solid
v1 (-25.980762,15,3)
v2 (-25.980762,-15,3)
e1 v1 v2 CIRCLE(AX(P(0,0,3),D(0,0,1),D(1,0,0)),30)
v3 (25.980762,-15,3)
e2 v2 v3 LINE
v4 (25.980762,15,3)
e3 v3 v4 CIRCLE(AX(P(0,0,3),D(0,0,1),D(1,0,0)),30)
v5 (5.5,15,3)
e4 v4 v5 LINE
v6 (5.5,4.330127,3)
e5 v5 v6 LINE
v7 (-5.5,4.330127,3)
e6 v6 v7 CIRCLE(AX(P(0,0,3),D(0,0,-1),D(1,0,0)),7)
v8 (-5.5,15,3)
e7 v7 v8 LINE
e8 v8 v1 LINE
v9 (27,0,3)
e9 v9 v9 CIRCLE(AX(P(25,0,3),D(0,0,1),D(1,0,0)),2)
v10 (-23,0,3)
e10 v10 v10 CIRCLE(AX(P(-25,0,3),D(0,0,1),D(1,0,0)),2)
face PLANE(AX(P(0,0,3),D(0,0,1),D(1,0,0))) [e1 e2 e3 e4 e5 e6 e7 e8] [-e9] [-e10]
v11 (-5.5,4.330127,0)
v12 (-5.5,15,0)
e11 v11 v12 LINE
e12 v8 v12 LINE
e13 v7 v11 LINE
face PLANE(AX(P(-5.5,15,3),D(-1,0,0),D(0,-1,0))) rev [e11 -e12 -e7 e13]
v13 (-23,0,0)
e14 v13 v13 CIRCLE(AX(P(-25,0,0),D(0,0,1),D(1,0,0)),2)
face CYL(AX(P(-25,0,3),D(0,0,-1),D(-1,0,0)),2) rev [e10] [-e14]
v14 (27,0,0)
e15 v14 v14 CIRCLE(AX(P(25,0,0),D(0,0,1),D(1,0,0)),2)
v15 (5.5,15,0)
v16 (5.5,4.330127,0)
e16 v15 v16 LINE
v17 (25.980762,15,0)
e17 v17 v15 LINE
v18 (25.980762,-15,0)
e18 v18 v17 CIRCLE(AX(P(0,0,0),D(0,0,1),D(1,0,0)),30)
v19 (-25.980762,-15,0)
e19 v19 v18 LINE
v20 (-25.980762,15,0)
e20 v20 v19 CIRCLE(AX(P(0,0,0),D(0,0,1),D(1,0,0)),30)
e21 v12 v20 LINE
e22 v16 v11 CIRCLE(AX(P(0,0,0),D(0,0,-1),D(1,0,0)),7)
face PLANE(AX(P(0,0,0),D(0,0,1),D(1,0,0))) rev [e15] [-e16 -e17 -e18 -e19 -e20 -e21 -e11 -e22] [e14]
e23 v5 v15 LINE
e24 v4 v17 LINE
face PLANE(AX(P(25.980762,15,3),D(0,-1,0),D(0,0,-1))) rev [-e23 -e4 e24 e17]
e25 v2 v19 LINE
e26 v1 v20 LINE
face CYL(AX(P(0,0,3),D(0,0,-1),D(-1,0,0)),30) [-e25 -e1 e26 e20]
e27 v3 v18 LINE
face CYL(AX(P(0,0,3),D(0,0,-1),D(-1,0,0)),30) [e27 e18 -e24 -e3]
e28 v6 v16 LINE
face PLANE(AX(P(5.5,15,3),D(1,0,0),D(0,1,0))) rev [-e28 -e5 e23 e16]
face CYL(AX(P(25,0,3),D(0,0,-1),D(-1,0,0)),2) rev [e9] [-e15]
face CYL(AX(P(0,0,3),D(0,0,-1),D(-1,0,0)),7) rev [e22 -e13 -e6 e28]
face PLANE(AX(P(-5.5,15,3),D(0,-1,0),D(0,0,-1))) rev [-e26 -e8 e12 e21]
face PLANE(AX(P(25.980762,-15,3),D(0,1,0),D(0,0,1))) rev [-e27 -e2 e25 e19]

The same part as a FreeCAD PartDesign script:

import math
import FreeCAD as App
import Part
import Sketcher

V = App.Vector

doc = App.newDocument("Part")
body = doc.addObject("PartDesign::Body", "Body")

# Sketch on XY plane
sketch1 = body.newObject("Sketcher::SketchObject", "Sketch")
sketch1.AttachmentSupport = (doc.getObject("XY_Plane"), [""])
sketch1.MapMode = "FlatFace"
sketch1.addGeometry([
    Part.LineSegment(V(-5.5, 15, 0), V(-26, 15, 0)),  # 0
    Part.ArcOfCircle(Part.Circle(V(0, 0, 0), V(0, 0, 1), 30), math.radians(150), math.radians(210)),  # 1
    Part.LineSegment(V(-26, -15, 0), V(26, -15, 0)),  # 2
    Part.ArcOfCircle(Part.Circle(V(0, 0, 0), V(0, 0, 1), 30), math.radians(-30), math.radians(30)),  # 3
    Part.LineSegment(V(26, 15, 0), V(5.5, 15, 0)),  # 4
    Part.LineSegment(V(5.5, 15, 0), V(5.5, 4.3, 0)),  # 5
    Part.ArcOfCircle(Part.Circle(V(0, 0, 0), V(0, 0, 1), 7), math.radians(142), math.radians(398)),  # 6
    Part.LineSegment(V(-5.5, 4.3, 0), V(-5.5, 15, 0)),  # 7
    Part.Circle(V(-25, 0, 0), V(0, 0, 1), 2),  # 8
    Part.Circle(V(25, 0, 0), V(0, 0, 1), 2),  # 9
], False)
sketch1.addConstraint([
    Sketcher.Constraint("Coincident", 0, 2, 1, 1),
    Sketcher.Constraint("Coincident", 1, 2, 2, 1),
    Sketcher.Constraint("Coincident", 2, 2, 3, 1),
    Sketcher.Constraint("Coincident", 3, 2, 4, 1),
    Sketcher.Constraint("Coincident", 4, 2, 5, 1),
    Sketcher.Constraint("Coincident", 5, 2, 6, 2),
    Sketcher.Constraint("Coincident", 6, 1, 7, 1),
    Sketcher.Constraint("Coincident", 7, 2, 0, 1),
    Sketcher.Constraint("Horizontal", 0),
    Sketcher.Constraint("Horizontal", 2),
    Sketcher.Constraint("Horizontal", 4),
    Sketcher.Constraint("Vertical", 5),
    Sketcher.Constraint("Vertical", 7),
    Sketcher.Constraint("Coincident", 1, 3, -1, 1),
    Sketcher.Constraint("Coincident", 3, 3, -1, 1),
    Sketcher.Constraint("Coincident", 6, 3, -1, 1),
    Sketcher.Constraint("Equal", 1, 3),
    Sketcher.Constraint("Equal", 8, 9),
    Sketcher.Constraint("Symmetric", 8, 3, 9, 3, -1, 1),
    Sketcher.Constraint("Symmetric", 4, 2, 7, 2, -2),
    Sketcher.Constraint("PointOnObject", 8, 3, -1),
    Sketcher.Constraint("Vertical", 0, 2, 1, 2),
    Sketcher.Constraint("Diameter", 8, 4.0),
    Sketcher.Constraint("Radius", 1, 30.0),
    Sketcher.Constraint("Radius", 6, 7.0),
    Sketcher.Constraint("DistanceX", 8, 3, -1, 1, 25.0),
    Sketcher.Constraint("DistanceY", -1, 1, 0, 2, 15.0),
    Sketcher.Constraint("DistanceX", 6, 1, 5, 2, 11.0),
])
pad1 = body.newObject("PartDesign::Pad", "Pad")
pad1.Profile = sketch1
pad1.Length = 3

doc.recompute()
